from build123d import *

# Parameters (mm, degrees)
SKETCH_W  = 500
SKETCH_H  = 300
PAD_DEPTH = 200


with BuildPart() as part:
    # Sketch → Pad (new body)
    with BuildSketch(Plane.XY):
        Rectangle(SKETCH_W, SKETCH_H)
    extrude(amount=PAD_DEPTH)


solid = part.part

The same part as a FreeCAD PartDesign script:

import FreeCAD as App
import Part
import Sketcher
from FreeCAD import Vector

doc = App.newDocument("Part")
params = doc.addObject("Spreadsheet::Sheet", "Params")
for row, (alias, value) in enumerate([
    ("sketch1_width", "500 mm"),
    ("sketch1_height", "300 mm"),
    ("pad1_length", "200 mm"),
], start=1):
    params.set(f"A{row}", alias)
    params.set(f"B{row}", "=" + value)
    params.setAlias(f"B{row}", alias)

body = doc.addObject("PartDesign::Body", "Body")

# Sketch on XY plane
sketch1 = body.newObject("Sketcher::SketchObject", "Sketch")
sketch1.AttachmentSupport = (doc.getObject("XY_Plane"), [""])
sketch1.MapMode = "FlatFace"
sketch1.addGeometry([
    Part.LineSegment(Vector(-250, 150, 0), Vector(-250, -150, 0)),
    Part.LineSegment(Vector(-250, -150, 0), Vector(250, -150, 0)),
    Part.LineSegment(Vector(250, -150, 0), Vector(250, 150, 0)),
    Part.LineSegment(Vector(250, 150, 0), Vector(-250, 150, 0)),
], False)
sketch1.addConstraint([
    Sketcher.Constraint("Coincident", 0, 2, 1, 1),
    Sketcher.Constraint("Coincident", 1, 2, 2, 1),
    Sketcher.Constraint("Coincident", 2, 2, 3, 1),
    Sketcher.Constraint("Coincident", 3, 2, 0, 1),
    Sketcher.Constraint("Vertical", 0),
    Sketcher.Constraint("Horizontal", 1),
    Sketcher.Constraint("Vertical", 2),
    Sketcher.Constraint("Horizontal", 3),
    Sketcher.Constraint("Symmetric", 0, 2, 2, 2, -1, 1),
    Sketcher.Constraint("DistanceX", 1, 1, 1, 2, 500.0),
    Sketcher.Constraint("DistanceY", 0, 2, 0, 1, 300.0),
])
sketch1.setExpression("Constraints[9]", "Params.sketch1_width")
sketch1.setExpression("Constraints[10]", "Params.sketch1_height")
pad1 = body.newObject("PartDesign::Pad", "Pad")
pad1.Profile = sketch1
pad1.setExpression("Length", "Params.pad1_length")

doc.recompute()
